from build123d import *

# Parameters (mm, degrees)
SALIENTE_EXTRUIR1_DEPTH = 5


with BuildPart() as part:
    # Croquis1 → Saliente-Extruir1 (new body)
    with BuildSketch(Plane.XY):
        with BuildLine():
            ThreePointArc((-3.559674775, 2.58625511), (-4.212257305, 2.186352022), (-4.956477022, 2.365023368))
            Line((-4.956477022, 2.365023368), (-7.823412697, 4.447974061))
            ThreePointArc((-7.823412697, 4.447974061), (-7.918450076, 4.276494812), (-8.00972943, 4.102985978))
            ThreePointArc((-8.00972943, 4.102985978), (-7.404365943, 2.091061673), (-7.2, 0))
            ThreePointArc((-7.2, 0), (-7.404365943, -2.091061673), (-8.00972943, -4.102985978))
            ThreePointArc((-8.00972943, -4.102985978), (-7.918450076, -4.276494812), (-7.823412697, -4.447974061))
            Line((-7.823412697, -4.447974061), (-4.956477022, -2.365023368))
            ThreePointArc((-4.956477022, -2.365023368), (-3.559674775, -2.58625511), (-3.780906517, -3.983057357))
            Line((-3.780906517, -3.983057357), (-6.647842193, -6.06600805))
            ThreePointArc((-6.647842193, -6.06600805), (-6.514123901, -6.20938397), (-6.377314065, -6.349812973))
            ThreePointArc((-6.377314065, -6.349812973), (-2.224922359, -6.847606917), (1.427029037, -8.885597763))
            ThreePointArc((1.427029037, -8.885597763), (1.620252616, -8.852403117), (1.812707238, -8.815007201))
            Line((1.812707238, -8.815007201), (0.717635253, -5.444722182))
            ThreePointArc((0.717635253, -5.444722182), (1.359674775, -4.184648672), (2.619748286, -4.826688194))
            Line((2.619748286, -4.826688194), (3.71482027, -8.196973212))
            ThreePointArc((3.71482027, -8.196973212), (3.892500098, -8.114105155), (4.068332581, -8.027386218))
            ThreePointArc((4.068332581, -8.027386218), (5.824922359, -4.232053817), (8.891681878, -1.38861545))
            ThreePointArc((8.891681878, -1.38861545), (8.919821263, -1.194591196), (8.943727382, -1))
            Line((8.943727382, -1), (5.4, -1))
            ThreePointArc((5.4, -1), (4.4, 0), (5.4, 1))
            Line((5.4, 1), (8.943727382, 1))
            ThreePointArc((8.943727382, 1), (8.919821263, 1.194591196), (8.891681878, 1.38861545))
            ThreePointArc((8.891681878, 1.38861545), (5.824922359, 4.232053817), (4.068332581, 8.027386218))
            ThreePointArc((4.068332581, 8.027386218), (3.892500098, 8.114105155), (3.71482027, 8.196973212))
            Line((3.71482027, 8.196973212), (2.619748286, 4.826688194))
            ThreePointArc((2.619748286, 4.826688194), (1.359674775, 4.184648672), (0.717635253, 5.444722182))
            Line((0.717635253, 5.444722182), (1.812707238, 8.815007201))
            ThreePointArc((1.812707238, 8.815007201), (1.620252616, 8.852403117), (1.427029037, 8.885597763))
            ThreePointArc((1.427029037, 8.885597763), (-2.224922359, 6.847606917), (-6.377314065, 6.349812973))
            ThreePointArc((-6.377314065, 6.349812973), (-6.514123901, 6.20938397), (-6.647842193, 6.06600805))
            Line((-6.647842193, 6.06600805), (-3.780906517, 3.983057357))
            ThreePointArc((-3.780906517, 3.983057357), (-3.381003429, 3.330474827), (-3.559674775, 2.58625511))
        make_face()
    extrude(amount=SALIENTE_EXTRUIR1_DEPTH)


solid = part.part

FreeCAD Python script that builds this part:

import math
import FreeCAD as App
import Part
import Sketcher
from FreeCAD import Vector
Q = App.Units.Quantity

doc = App.newDocument("Part")
body = doc.addObject("PartDesign::Body", "Body")

sketch1 = doc.addObject("Sketcher::SketchObject", "Sketch")
body.addObject(sketch1)
sketch1.AttachmentSupport = (doc.XY_Plane, [""])
sketch1.MapMode = "FlatFace"
sketch1.addGeometry([
    Part.ArcOfCircle(Part.Circle(Vector(-4.37, 3.17, 0), Vector(0, 0, 1), 1), math.radians(-126), math.radians(-36)),
    Part.LineSegment(Vector(-4.96, 2.37, 0), Vector(-7.82, 4.45, 0)),
    Part.ArcOfCircle(Part.Circle(Vector(0, 0, 0), Vector(0, 0, 1), 9), math.radians(150.38), math.radians(152.88)),
    Part.ArcOfCircle(Part.Circle(Vector(-18, 0, 0), Vector(0, 0, 1), 10.8), math.radians(0), math.radians(22)),
    Part.ArcOfCircle(Part.Circle(Vector(-18, 0, 0), Vector(0, 0, 1), 10.8), math.radians(-22), math.radians(0)),
    Part.ArcOfCircle(Part.Circle(Vector(0, 0, 0), Vector(0, 0, 1), 9), math.radians(-152.88), math.radians(-150.38)),
    Part.LineSegment(Vector(-7.82, -4.45, 0), Vector(-4.96, -2.37, 0)),
    Part.ArcOfCircle(Part.Circle(Vector(-4.37, -3.17, 0), Vector(0, 0, 1), 1), math.radians(-54), math.radians(126)),
    Part.LineSegment(Vector(-3.78, -3.98, 0), Vector(-6.65, -6.07, 0)),
    Part.ArcOfCircle(Part.Circle(Vector(0, 0, 0), Vector(0, 0, 1), 9), math.radians(-137.62), math.radians(-135.12)),
    Part.ArcOfCircle(Part.Circle(Vector(-5.56, -17.12, 0), Vector(0, 0, 1), 10.8), math.radians(50), math.radians(94)),
    Part.ArcOfCircle(Part.Circle(Vector(0, 0, 0), Vector(0, 0, 1), 9), math.radians(-80.88), math.radians(-78.38)),
    Part.LineSegment(Vector(1.81, -8.82, 0), Vector(0.72, -5.44, 0)),
    Part.ArcOfCircle(Part.Circle(Vector(1.67, -5.14, 0), Vector(0, 0, 1), 1), math.radians(18), math.radians(198)),
    Part.LineSegment(Vector(2.62, -4.83, 0), Vector(3.71, -8.2, 0)),
    Part.ArcOfCircle(Part.Circle(Vector(0, 0, 0), Vector(0, 0, 1), 9), math.radians(-65.62), math.radians(-63.12)),
    Part.ArcOfCircle(Part.Circle(Vector(14.56, -10.58, 0), Vector(0, 0, 1), 10.8), math.radians(122), math.radians(166)),
    Part.ArcOfCircle(Part.Circle(Vector(0, 0, 0), Vector(0, 0, 1), 9), math.radians(-8.88), math.radians(-6.38)),
    Part.LineSegment(Vector(8.94, -1, 0), Vector(5.4, -1, 0)),
    Part.ArcOfCircle(Part.Circle(Vector(5.4, 0, 0), Vector(0, 0, 1), 1), math.radians(90), math.radians(270)),
    Part.LineSegment(Vector(5.4, 1, 0), Vector(8.94, 1, 0)),
    Part.ArcOfCircle(Part.Circle(Vector(0, 0, 0), Vector(0, 0, 1), 9), math.radians(6.38), math.radians(8.88)),
    Part.ArcOfCircle(Part.Circle(Vector(14.56, 10.58, 0), Vector(0, 0, 1), 10.8), math.radians(-166), math.radians(-122)),
    Part.ArcOfCircle(Part.Circle(Vector(0, 0, 0), Vector(0, 0, 1), 9), math.radians(63.12), math.radians(65.62)),
    Part.LineSegment(Vector(3.71, 8.2, 0), Vector(2.62, 4.83, 0)),
    Part.ArcOfCircle(Part.Circle(Vector(1.67, 5.14, 0), Vector(0, 0, 1), 1), math.radians(162), math.radians(342)),
    Part.LineSegment(Vector(0.72, 5.44, 0), Vector(1.81, 8.82, 0)),
    Part.ArcOfCircle(Part.Circle(Vector(0, 0, 0), Vector(0, 0, 1), 9), math.radians(78.38), math.radians(80.88)),
    Part.ArcOfCircle(Part.Circle(Vector(-5.56, 17.12, 0), Vector(0, 0, 1), 10.8), math.radians(-94), math.radians(-50)),
    Part.ArcOfCircle(Part.Circle(Vector(0, 0, 0), Vector(0, 0, 1), 9), math.radians(135.12), math.radians(137.62)),
    Part.LineSegment(Vector(-6.65, 6.07, 0), Vector(-3.78, 3.98, 0)),
    Part.ArcOfCircle(Part.Circle(Vector(-4.37, 3.17, 0), Vector(0, 0, 1), 1), math.radians(-36), math.radians(54)),
], False)
sketch1.addConstraint([
    Sketcher.Constraint("Tangent", 0, 1, 1, 1),
    Sketcher.Constraint("Coincident", 1, 2, 2, 1),
    Sketcher.Constraint("Coincident", 2, 2, 3, 2),
    Sketcher.Constraint("Tangent", 3, 1, 4, 2),
    Sketcher.Constraint("Coincident", 4, 1, 5, 1),
    Sketcher.Constraint("Coincident", 5, 2, 6, 1),
    Sketcher.Constraint("Tangent", 6, 2, 7, 2),
    Sketcher.Constraint("Tangent", 7, 1, 8, 1),
    Sketcher.Constraint("Coincident", 8, 2, 9, 1),
    Sketcher.Constraint("Coincident", 9, 2, 10, 2),
    Sketcher.Constraint("Coincident", 10, 1, 11, 1),
    Sketcher.Constraint("Coincident", 11, 2, 12, 1),
    Sketcher.Constraint("Tangent", 12, 2, 13, 2),
    Sketcher.Constraint("Tangent", 13, 1, 14, 1),
    Sketcher.Constraint("Coincident", 14, 2, 15, 1),
    Sketcher.Constraint("Coincident", 15, 2, 16, 2),
    Sketcher.Constraint("Coincident", 16, 1, 17, 1),
    Sketcher.Constraint("Coincident", 17, 2, 18, 1),
    Sketcher.Constraint("Tangent", 18, 2, 19, 2),
    Sketcher.Constraint("Tangent", 19, 1, 20, 1),
    Sketcher.Constraint("Coincident", 20, 2, 21, 1),
    Sketcher.Constraint("Coincident", 21, 2, 22, 2),
    Sketcher.Constraint("Coincident", 22, 1, 23, 1),
    Sketcher.Constraint("Coincident", 23, 2, 24, 1),
    Sketcher.Constraint("Tangent", 24, 2, 25, 2),
    Sketcher.Constraint("Tangent", 25, 1, 26, 1),
    Sketcher.Constraint("Coincident", 26, 2, 27, 1),
    Sketcher.Constraint("Coincident", 27, 2, 28, 2),
    Sketcher.Constraint("Coincident", 28, 1, 29, 1),
    Sketcher.Constraint("Coincident", 29, 2, 30, 1),
    Sketcher.Constraint("Tangent", 30, 2, 31, 2),
    Sketcher.Constraint("Tangent", 31, 1, 0, 2),
    Sketcher.Constraint("Horizontal", 18),
    Sketcher.Constraint("Horizontal", 20),
    Sketcher.Constraint("Coincident", 2, 3, -1, 1),
    Sketcher.Constraint("Coincident", 5, 3, -1, 1),
    Sketcher.Constraint("Coincident", 9, 3, -1, 1),
    Sketcher.Constraint("Coincident", 11, 3, -1, 1),
    Sketcher.Constraint("Coincident", 15, 3, -1, 1),
    Sketcher.Constraint("Coincident", 17, 3, -1, 1),
    Sketcher.Constraint("Coincident", 21, 3, -1, 1),
    Sketcher.Constraint("Coincident", 23, 3, -1, 1),
    Sketcher.Constraint("Coincident", 27, 3, -1, 1),
    Sketcher.Constraint("Coincident", 29, 3, -1, 1),
    Sketcher.Constraint("Equal", 3, 4),
    Sketcher.Constraint("Equal", 2, 5),
    Sketcher.Constraint("Equal", 0, 7),
    Sketcher.Constraint("Equal", 5, 9),
    Sketcher.Constraint("Equal", 4, 10),
    Sketcher.Constraint("Equal", 9, 11),
    Sketcher.Constraint("Equal", 7, 13),
    Sketcher.Constraint("Equal", 11, 15),
    Sketcher.Constraint("Equal", 10, 16),
    Sketcher.Constraint("Equal", 15, 17),
    Sketcher.Constraint("Equal", 13, 19),
    Sketcher.Constraint("Equal", 17, 21),
    Sketcher.Constraint("Equal", 16, 22),
    Sketcher.Constraint("Equal", 21, 23),
    Sketcher.Constraint("Equal", 19, 25),
    Sketcher.Constraint("Equal", 23, 27),
    Sketcher.Constraint("Equal", 22, 28),
    Sketcher.Constraint("Equal", 27, 29),
    Sketcher.Constraint("Equal", 25, 31),
    Sketcher.Constraint("Symmetric", 0, 3, 7, 3, -1),
    Sketcher.Constraint("Symmetric", 16, 3, 22, 3, -1),
    Sketcher.Constraint("Symmetric", 13, 3, 25, 3, -1),
    Sketcher.Constraint("Symmetric", 10, 3, 28, 3, -1),
    Sketcher.Constraint("PointOnObject", 3, 3, -1),
    Sketcher.Constraint("PointOnObject", 19, 3, -1),
    Sketcher.Constraint("PointOnObject", 3, 1, -1),
    Sketcher.Constraint("Parallel", 6, 8),
    Sketcher.Constraint("Parallel", 12, 14),
    Sketcher.Constraint("Parallel", 24, 26),
    Sketcher.Constraint("Parallel", 1, 30),
    Sketcher.Constraint("Vertical", 1, 2, 5, 2),
    Sketcher.Constraint("Vertical", 14, 2, 23, 2),
    Sketcher.Constraint("Equal", 6, 8),
    Sketcher.Constraint("Equal", 8, 12),
    Sketcher.Constraint("Equal", 12, 14),
    Sketcher.Constraint("Radius", 0, Q("1 mm")),
    Sketcher.Constraint("Radius", 3, Q("10.8 mm")),
    Sketcher.Constraint("Angle", 1, Q("144 deg")),
    Sketcher.Constraint("Angle", 12, Q("108 deg")),
    Sketcher.Constraint("DistanceX", 3, 3, -1, 1, Q("18 mm")),
    Sketcher.Constraint("DistanceX", -1, 1, 19, 3, Q("5.4 mm")),
    Sketcher.Constraint("Radius", 15, Q("8.999459 mm")),
    Sketcher.Constraint("DistanceX", 5, 2, 9, 2, Q("1.446099 mm")),
    Sketcher.Constraint("DistanceX", 7, 3, 11, 2, Q("6.181399 mm")),
    Sketcher.Constraint("DistanceY", 15, 2, 13, 1, Q("3.200698 mm")),
    Sketcher.Constraint("DistanceX", -1, 1, 10, 1, Q("1.427029 mm")),
    Sketcher.Constraint("DistanceX", -1, 1, 16, 1, Q("8.891682 mm")),
    Sketcher.Constraint("DistanceY", 0, 1, 31, 1, Q("0.221232 mm")),
])
pad1 = doc.addObject("PartDesign::Pad", "Pad")
body.addObject(pad1)
pad1.Profile = sketch1
pad1.Length = 5

doc.recompute()
